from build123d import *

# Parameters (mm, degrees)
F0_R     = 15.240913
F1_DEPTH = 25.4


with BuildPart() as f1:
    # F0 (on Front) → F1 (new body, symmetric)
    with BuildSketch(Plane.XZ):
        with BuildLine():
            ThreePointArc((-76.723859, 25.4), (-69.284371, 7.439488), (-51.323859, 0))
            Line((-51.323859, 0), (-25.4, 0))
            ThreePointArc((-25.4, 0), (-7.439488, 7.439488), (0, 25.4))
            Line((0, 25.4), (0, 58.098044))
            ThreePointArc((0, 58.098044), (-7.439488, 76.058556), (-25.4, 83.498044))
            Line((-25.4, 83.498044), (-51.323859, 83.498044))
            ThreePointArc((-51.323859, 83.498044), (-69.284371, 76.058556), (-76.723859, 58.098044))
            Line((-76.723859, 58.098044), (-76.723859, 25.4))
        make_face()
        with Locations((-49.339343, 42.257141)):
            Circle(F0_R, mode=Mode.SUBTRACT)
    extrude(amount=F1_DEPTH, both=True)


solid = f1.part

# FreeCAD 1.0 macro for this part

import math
import FreeCAD as App
import Part
import Sketcher
Q = App.Units.Quantity

doc = App.newDocument("Part")
body = doc.addObject("PartDesign::Body", "Body")

sketch1 = doc.addObject("Sketcher::SketchObject", "Sketch")
body.addObject(sketch1)
sketch1.AttachmentSupport = (doc.XZ_Plane, [""])
sketch1.MapMode = "FlatFace"
sketch1.addGeometry([
    Part.ArcOfCircle(Part.Circle(App.Vector(-51, 25, 0), App.Vector(0, 0, 1), 25), math.radians(-180), math.radians(-90)),
    Part.LineSegment(App.Vector(-51, 0, 0), App.Vector(-25, 0, 0)),
    Part.ArcOfCircle(Part.Circle(App.Vector(-25, 25, 0), App.Vector(0, 0, 1), 25), math.radians(-90), math.radians(0)),
    Part.LineSegment(App.Vector(0, 25, 0), App.Vector(0, 58, 0)),
    Part.ArcOfCircle(Part.Circle(App.Vector(-25, 58, 0), App.Vector(0, 0, 1), 25), math.radians(0), math.radians(90)),
    Part.LineSegment(App.Vector(-25, 83, 0), App.Vector(-51, 83, 0)),
    Part.ArcOfCircle(Part.Circle(App.Vector(-51, 58, 0), App.Vector(0, 0, 1), 25), math.radians(90), math.radians(180)),
    Part.LineSegment(App.Vector(-77, 58, 0), App.Vector(-77, 25, 0)),
    Part.Circle(App.Vector(-49, 42, 0), App.Vector(0, 0, 1), 15),
], False)
sketch1.addConstraint([
    Sketcher.Constraint("Tangent", 0, 2, 1, 1),
    Sketcher.Constraint("Tangent", 1, 2, 2, 1),
    Sketcher.Constraint("Tangent", 2, 2, 3, 1),
    Sketcher.Constraint("Tangent", 3, 2, 4, 1),
    Sketcher.Constraint("Tangent", 4, 2, 5, 1),
    Sketcher.Constraint("Tangent", 5, 2, 6, 1),
    Sketcher.Constraint("Tangent", 6, 2, 7, 1),
    Sketcher.Constraint("Tangent", 7, 2, 0, 1),
    Sketcher.Constraint("Horizontal", 1),
    Sketcher.Constraint("Vertical", 3),
    Sketcher.Constraint("Horizontal", 5),
    Sketcher.Constraint("Vertical", 7),
    Sketcher.Constraint("Equal", 0, 2),
    Sketcher.Constraint("Equal", 2, 4),
    Sketcher.Constraint("Equal", 4, 6),
    Sketcher.Constraint("PointOnObject", 0, 2, -1),
    Sketcher.Constraint("PointOnObject", 2, 2, -2),
    Sketcher.Constraint("Radius", 0, Q("1 in")),
    Sketcher.Constraint("Diameter", 8, 30.481826),
    Sketcher.Constraint("DistanceX", 1, 1, 1, 2, 25.923859),
    Sketcher.Constraint("DistanceY", 3, 1, 3, 2, 32.698044),
    Sketcher.Constraint("DistanceY", -1, 1, 8, 3, 42.257141),
    Sketcher.Constraint("DistanceX", 8, 3, -1, 1, 49.339343),
])
pad1 = doc.addObject("PartDesign::Pad", "Pad")
body.addObject(pad1)
pad1.Profile = sketch1
pad1.Length = Q("2 in")
pad1.Midplane = True

doc.recompute()
